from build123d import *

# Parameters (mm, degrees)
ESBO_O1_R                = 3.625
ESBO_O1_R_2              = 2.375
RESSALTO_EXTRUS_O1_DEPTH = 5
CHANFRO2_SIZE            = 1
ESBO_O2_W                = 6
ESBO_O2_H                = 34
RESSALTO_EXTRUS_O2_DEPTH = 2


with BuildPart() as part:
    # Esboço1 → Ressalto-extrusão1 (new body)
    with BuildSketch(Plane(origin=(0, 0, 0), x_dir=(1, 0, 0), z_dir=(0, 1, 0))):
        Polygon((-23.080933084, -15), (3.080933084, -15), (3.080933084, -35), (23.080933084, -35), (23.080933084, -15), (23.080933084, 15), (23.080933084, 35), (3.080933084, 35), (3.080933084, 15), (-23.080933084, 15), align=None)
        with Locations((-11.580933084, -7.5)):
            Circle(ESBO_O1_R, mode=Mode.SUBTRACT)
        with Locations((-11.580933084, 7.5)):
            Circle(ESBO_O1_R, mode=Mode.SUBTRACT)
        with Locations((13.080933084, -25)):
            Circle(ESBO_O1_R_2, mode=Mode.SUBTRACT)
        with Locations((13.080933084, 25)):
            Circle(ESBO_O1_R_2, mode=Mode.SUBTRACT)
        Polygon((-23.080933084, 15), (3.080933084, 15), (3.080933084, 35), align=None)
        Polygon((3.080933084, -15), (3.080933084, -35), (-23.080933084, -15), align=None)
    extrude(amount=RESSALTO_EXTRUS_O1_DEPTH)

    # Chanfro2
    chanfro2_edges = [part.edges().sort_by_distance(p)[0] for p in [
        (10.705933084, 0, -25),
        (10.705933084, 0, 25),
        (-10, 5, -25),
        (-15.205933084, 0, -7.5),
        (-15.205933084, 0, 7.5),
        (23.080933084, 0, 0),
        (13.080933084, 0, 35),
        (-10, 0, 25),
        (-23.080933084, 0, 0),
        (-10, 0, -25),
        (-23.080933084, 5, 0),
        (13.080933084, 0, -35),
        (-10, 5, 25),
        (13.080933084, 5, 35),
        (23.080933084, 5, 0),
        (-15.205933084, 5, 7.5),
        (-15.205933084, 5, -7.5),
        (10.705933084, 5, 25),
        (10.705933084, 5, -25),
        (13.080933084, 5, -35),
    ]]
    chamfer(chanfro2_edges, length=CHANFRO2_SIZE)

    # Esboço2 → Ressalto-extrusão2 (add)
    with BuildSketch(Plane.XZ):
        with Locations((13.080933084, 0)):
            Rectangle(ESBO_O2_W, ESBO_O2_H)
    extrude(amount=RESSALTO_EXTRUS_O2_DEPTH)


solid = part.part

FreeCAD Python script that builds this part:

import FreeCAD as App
import Part
import Sketcher

V = App.Vector
Q = App.Units.Quantity


def edges_at(feature, points):
    """Names of the edges that pass closest to the given points."""
    edges = feature.Shape.Edges
    near = lambda p: min(range(len(edges)), key=lambda i: edges[i].distToShape(Part.Vertex(*p))[0])
    return sorted({f"Edge{near(p) + 1}" for p in points})

doc = App.newDocument("Part")
body = doc.addObject("PartDesign::Body", "Body")

# Sketch on XZ plane
sketch1 = body.newObject("Sketcher::SketchObject", "Sketch")
sketch1.AttachmentSupport = (doc.getObject("XZ_Plane"), [""])
sketch1.MapMode = "FlatFace"
sketch1.addGeometry([
    Part.LineSegment(V(3.1, 35, 0), V(23.1, 35, 0)),  # 0
    Part.LineSegment(V(23.1, 35, 0), V(23.1, -35, 0)),  # 1
    Part.LineSegment(V(23.1, -35, 0), V(3.1, -35, 0)),  # 2
    Part.LineSegment(V(3.1, -35, 0), V(-23.1, -15, 0)),  # 3
    Part.LineSegment(V(-23.1, -15, 0), V(-23.1, 15, 0)),  # 4
    Part.LineSegment(V(-23.1, 15, 0), V(3.1, 35, 0)),  # 5
    Part.Circle(V(-11.6, 7.5, 0), V(0, 0, 1), 3.6),  # 6
    Part.Circle(V(13.1, 25, 0), V(0, 0, 1), 2.4),  # 7
    Part.Circle(V(-11.6, -7.5, 0), V(0, 0, 1), 3.6),  # 8
    Part.Circle(V(13.1, -25, 0), V(0, 0, 1), 2.4),  # 9
], False)
sketch1.addConstraint([
    Sketcher.Constraint("Coincident", 0, 2, 1, 1),
    Sketcher.Constraint("Coincident", 1, 2, 2, 1),
    Sketcher.Constraint("Coincident", 2, 2, 3, 1),
    Sketcher.Constraint("Coincident", 3, 2, 4, 1),
    Sketcher.Constraint("Coincident", 4, 2, 5, 1),
    Sketcher.Constraint("Coincident", 5, 2, 0, 1),
    Sketcher.Constraint("Horizontal", 0),
    Sketcher.Constraint("Vertical", 1),
    Sketcher.Constraint("Horizontal", 2),
    Sketcher.Constraint("Vertical", 4),
    Sketcher.Constraint("Equal", 6, 8),
    Sketcher.Constraint("Equal", 7, 9),
    Sketcher.Constraint("Symmetric", 6, 3, 8, 3, -1),
    Sketcher.Constraint("Symmetric", 7, 3, 9, 3, -1),
    Sketcher.Constraint("Symmetric", 2, 2, 5, 2, -1),
    Sketcher.Constraint("Equal", 3, 5),
    Sketcher.Constraint("Diameter", 6, Q("7.25 mm")),
    Sketcher.Constraint("Diameter", 7, Q("4.75 mm")),
    Sketcher.Constraint("DistanceX", 0, 1, 0, 2, Q("20 mm")),
    Sketcher.Constraint("DistanceY", 1, 2, 1, 1, Q("70 mm")),
    Sketcher.Constraint("DistanceY", 4, 1, 4, 2, Q("30 mm")),
    Sketcher.Constraint("DistanceY", -1, 1, 7, 3, Q("25 mm")),
    Sketcher.Constraint("DistanceY", 8, 3, 6, 3, Q("15 mm")),
    Sketcher.Constraint("DistanceX", 7, 3, 0, 2, Q("10 mm")),
    Sketcher.Constraint("DistanceX", 3, 2, 8, 3, Q("11.5 mm")),
    Sketcher.Constraint("Distance", 3, Q("32.930886 mm")),
    Sketcher.Constraint("DistanceX", 6, 3, -1, 1, Q("11.580933 mm")),
])
pad1 = body.newObject("PartDesign::Pad", "Pad")
pad1.Profile = sketch1
pad1.Length = 5
pad1.Reversed = True
doc.recompute()

chamfer = body.newObject("PartDesign::Chamfer", "Chamfer")
chamfer.Base = (pad1, edges_at(pad1, [
    (10.706, 0, -25),
    (10.706, 0, 25),
    (-10, 5, -25),
    (-15.206, 0, -7.5),
    (-15.206, 0, 7.5),
    (23.081, 0, 0),
    (13.081, 0, 35),
    (-10, 0, 25),
    (-23.081, 0, 0),
    (-10, 0, -25),
    (-23.081, 5, 0),
    (13.081, 0, -35),
    (-10, 5, 25),
    (13.081, 5, 35),
    (23.081, 5, 0),
    (-15.206, 5, 7.5),
    (-15.206, 5, -7.5),
    (10.706, 5, 25),
    (10.706, 5, -25),
    (13.081, 5, -35),
]))
chamfer.Size = 1

# Sketch on XZ plane
sketch2 = body.newObject("Sketcher::SketchObject", "Sketch001")
sketch2.AttachmentSupport = (doc.getObject("XZ_Plane"), [""])
sketch2.MapMode = "FlatFace"
sketch2.addGeometry([
    Part.LineSegment(V(10, 17, 0), V(10, -17, 0)),
    Part.LineSegment(V(10, -17, 0), V(16, -17, 0)),
    Part.LineSegment(V(16, -17, 0), V(16, 17, 0)),
    Part.LineSegment(V(16, 17, 0), V(10, 17, 0)),
], False)
sketch2.addConstraint([
    Sketcher.Constraint("Coincident", 0, 2, 1, 1),
    Sketcher.Constraint("Coincident", 1, 2, 2, 1),
    Sketcher.Constraint("Coincident", 2, 2, 3, 1),
    Sketcher.Constraint("Coincident", 3, 2, 0, 1),
    Sketcher.Constraint("Vertical", 0),
    Sketcher.Constraint("Horizontal", 1),
    Sketcher.Constraint("Vertical", 2),
    Sketcher.Constraint("Horizontal", 3),
    Sketcher.Constraint("DistanceX", 1, 1, 1, 2, Q("6 mm")),
    Sketcher.Constraint("DistanceY", 0, 2, 0, 1, Q("34 mm")),
    Sketcher.Constraint("DistanceY", 0, 2, -1, 1, Q("17 mm")),
    Sketcher.Constraint("DistanceX", -1, 1, 0, 2, Q("10.080933 mm")),
])
pad2 = body.newObject("PartDesign::Pad", "Pad001")
pad2.Profile = sketch2
pad2.Length = 2

doc.recompute()
